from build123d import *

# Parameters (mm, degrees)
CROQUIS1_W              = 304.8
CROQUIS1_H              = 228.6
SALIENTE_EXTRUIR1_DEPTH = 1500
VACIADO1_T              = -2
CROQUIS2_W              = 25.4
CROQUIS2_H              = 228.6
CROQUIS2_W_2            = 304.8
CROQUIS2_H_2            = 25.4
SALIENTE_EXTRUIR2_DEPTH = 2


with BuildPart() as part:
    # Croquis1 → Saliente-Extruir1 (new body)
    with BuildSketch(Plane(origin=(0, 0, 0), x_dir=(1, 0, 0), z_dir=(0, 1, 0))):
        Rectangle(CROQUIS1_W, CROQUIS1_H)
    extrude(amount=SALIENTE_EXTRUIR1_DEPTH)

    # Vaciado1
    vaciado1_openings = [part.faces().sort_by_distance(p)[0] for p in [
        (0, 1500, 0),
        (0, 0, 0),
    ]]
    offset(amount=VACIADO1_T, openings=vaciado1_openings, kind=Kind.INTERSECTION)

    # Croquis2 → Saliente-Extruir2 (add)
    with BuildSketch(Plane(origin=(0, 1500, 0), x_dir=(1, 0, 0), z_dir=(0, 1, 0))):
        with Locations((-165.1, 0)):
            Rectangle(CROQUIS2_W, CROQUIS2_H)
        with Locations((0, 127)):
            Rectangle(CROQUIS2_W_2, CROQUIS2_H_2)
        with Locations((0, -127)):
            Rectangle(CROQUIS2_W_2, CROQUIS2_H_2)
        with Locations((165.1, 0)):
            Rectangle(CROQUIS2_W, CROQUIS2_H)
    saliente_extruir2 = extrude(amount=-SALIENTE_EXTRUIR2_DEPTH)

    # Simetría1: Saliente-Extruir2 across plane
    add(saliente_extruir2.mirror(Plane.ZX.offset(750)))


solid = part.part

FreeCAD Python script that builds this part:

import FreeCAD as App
import Part
import Sketcher
from FreeCAD import Vector
Q = App.Units.Quantity


def faces_at(feature, points):
    """Names of the faces that lie closest to the given points."""
    faces = feature.Shape.Faces
    near = lambda p: min(range(len(faces)), key=lambda i: faces[i].distToShape(Part.Vertex(*p))[0])
    return sorted({f"Face{near(p) + 1}" for p in points})


def add_polygon(sketch, points):
    """Adds a closed chain of lines whose ends are joined by coincident constraints."""
    first, n = sketch.GeometryCount, len(points)
    for a, b in zip(points, points[1:] + points[:1]):
        sketch.addGeometry(Part.LineSegment(App.Vector(*a, 0), App.Vector(*b, 0)), False)
    for i in range(n):
        sketch.addConstraint(Sketcher.Constraint("Coincident", first + i, 2, first + (i + 1) % n, 1))

doc = App.newDocument("Part")
params = doc.addObject("Spreadsheet::Sheet", "Params")
for row, (alias, value) in enumerate([
    ("sketch1_width", "12 in"),
    ("sketch1_height", "9 in"),
    ("pad1_length", "1500 mm"),
    ("thickness_wall", "2 mm"),
    ("sketch2_width", "1 in"),
    ("sketch2_width2", "12 in"),
    ("sketch2_height", "9 in"),
    ("pad2_length", "2 mm"),
], start=1):
    params.set(f"A{row}", alias)
    params.set(f"B{row}", "=" + value)
    params.setAlias(f"B{row}", alias)

body = doc.addObject("PartDesign::Body", "Body")

sketch1 = body.newObject("Sketcher::SketchObject", "Sketch")
sketch1.AttachmentSupport = (doc.getObject("XZ_Plane"), [""])
sketch1.MapMode = "FlatFace"
add_polygon(sketch1, [(-152, -114), (-152, 114), (152, 114), (152, -114)])
sketch1.addConstraint([
    Sketcher.Constraint("Vertical", 0),
    Sketcher.Constraint("Horizontal", 1),
    Sketcher.Constraint("Vertical", 2),
    Sketcher.Constraint("Horizontal", 3),
    Sketcher.Constraint("Symmetric", 0, 2, 2, 2, -1, 1),
    Sketcher.Constraint("DistanceX", 1, 1, 1, 2, Q("12 in")),
    Sketcher.Constraint("DistanceY", 0, 1, 0, 2, Q("9 in")),
])
sketch1.setExpression("Constraints[9]", "Params.sketch1_width")
sketch1.setExpression("Constraints[10]", "Params.sketch1_height")
pad1 = body.newObject("PartDesign::Pad", "Pad")
pad1.Profile = sketch1
pad1.setExpression("Length", "Params.pad1_length")
pad1.Reversed = True
doc.recompute()

thickness = body.newObject("PartDesign::Thickness", "Thickness")
thickness.Base = (pad1, faces_at(pad1, [(0, 1500, 0), (0, 0, 0)]))
thickness.setExpression("Value", "Params.thickness_wall")
thickness.Reversed = True
thickness.Join = "Intersection"

sketch2 = body.newObject("Sketcher::SketchObject", "Sketch001")
sketch2.AttachmentSupport = (doc.getObject("XZ_Plane"), [""])
sketch2.MapMode = "FlatFace"
sketch2.AttachmentOffset = App.Placement(Vector(0, 0, -1500), App.Rotation())
add_polygon(sketch2, [(-178, -114), (-178, 114), (-152, 114), (-152, -114)])
add_polygon(sketch2, [(-152, -140), (-152, -114), (152, -114), (152, -140)])
add_polygon(sketch2, [(-152, 114), (-152, 140), (152, 140), (152, 114)])
add_polygon(sketch2, [(152, -114), (152, 114), (178, 114), (178, -114)])
sketch2.addConstraint([
    Sketcher.Constraint("Vertical", 0),
    Sketcher.Constraint("Horizontal", 1),
    Sketcher.Constraint("Vertical", 2),
    Sketcher.Constraint("Horizontal", 3),
    Sketcher.Constraint("Vertical", 4),
    Sketcher.Constraint("Horizontal", 5),
    Sketcher.Constraint("Vertical", 6),
    Sketcher.Constraint("Horizontal", 7),
    Sketcher.Constraint("Vertical", 8),
    Sketcher.Constraint("Horizontal", 9),
    Sketcher.Constraint("Vertical", 10),
    Sketcher.Constraint("Horizontal", 11),
    Sketcher.Constraint("Vertical", 12),
    Sketcher.Constraint("Horizontal", 13),
    Sketcher.Constraint("Vertical", 14),
    Sketcher.Constraint("Horizontal", 15),
    Sketcher.Constraint("Coincident", 4, 2, 2, 2),
    Sketcher.Constraint("Coincident", 11, 2, 1, 2),
    Sketcher.Constraint("Coincident", 12, 2, 10, 2),
    Sketcher.Constraint("Coincident", 15, 2, 5, 2),
    Sketcher.Constraint("Symmetric", 1, 2, 5, 2, -1, 1),
    Sketcher.Constraint("Equal", 3, 13),
    Sketcher.Constraint("Equal", 15, 4),
    Sketcher.Constraint("Equal", 6, 8),
    Sketcher.Constraint("DistanceX", 1, 1, 1, 2, Q("1 in")),
    Sketcher.Constraint("DistanceX", 5, 1, 5, 2, Q("12 in")),
    Sketcher.Constraint("DistanceY", 0, 1, 0, 2, Q("9 in")),
])
sketch2.setExpression("Constraints[40]", "Params.sketch2_width")
sketch2.setExpression("Constraints[41]", "Params.sketch2_width2")
sketch2.setExpression("Constraints[42]", "Params.sketch2_height")
pad2 = body.newObject("PartDesign::Pad", "Pad001")
pad2.Profile = sketch2
pad2.setExpression("Length", "Params.pad2_length")
doc.recompute()

datumplane = body.newObject("PartDesign::Plane", "DatumPlane")
datumplane.AttachmentSupport = (doc.getObject("XZ_Plane"), [""])
datumplane.MapMode = "FlatFace"
datumplane.AttachmentOffset = App.Placement(Vector(0, 0, -750), App.Rotation())
mirrored = body.newObject("PartDesign::Mirrored", "Mirrored")
mirrored.Originals = [pad2]
mirrored.MirrorPlane = (datumplane, [""])
body.Tip = mirrored

doc.recompute()
